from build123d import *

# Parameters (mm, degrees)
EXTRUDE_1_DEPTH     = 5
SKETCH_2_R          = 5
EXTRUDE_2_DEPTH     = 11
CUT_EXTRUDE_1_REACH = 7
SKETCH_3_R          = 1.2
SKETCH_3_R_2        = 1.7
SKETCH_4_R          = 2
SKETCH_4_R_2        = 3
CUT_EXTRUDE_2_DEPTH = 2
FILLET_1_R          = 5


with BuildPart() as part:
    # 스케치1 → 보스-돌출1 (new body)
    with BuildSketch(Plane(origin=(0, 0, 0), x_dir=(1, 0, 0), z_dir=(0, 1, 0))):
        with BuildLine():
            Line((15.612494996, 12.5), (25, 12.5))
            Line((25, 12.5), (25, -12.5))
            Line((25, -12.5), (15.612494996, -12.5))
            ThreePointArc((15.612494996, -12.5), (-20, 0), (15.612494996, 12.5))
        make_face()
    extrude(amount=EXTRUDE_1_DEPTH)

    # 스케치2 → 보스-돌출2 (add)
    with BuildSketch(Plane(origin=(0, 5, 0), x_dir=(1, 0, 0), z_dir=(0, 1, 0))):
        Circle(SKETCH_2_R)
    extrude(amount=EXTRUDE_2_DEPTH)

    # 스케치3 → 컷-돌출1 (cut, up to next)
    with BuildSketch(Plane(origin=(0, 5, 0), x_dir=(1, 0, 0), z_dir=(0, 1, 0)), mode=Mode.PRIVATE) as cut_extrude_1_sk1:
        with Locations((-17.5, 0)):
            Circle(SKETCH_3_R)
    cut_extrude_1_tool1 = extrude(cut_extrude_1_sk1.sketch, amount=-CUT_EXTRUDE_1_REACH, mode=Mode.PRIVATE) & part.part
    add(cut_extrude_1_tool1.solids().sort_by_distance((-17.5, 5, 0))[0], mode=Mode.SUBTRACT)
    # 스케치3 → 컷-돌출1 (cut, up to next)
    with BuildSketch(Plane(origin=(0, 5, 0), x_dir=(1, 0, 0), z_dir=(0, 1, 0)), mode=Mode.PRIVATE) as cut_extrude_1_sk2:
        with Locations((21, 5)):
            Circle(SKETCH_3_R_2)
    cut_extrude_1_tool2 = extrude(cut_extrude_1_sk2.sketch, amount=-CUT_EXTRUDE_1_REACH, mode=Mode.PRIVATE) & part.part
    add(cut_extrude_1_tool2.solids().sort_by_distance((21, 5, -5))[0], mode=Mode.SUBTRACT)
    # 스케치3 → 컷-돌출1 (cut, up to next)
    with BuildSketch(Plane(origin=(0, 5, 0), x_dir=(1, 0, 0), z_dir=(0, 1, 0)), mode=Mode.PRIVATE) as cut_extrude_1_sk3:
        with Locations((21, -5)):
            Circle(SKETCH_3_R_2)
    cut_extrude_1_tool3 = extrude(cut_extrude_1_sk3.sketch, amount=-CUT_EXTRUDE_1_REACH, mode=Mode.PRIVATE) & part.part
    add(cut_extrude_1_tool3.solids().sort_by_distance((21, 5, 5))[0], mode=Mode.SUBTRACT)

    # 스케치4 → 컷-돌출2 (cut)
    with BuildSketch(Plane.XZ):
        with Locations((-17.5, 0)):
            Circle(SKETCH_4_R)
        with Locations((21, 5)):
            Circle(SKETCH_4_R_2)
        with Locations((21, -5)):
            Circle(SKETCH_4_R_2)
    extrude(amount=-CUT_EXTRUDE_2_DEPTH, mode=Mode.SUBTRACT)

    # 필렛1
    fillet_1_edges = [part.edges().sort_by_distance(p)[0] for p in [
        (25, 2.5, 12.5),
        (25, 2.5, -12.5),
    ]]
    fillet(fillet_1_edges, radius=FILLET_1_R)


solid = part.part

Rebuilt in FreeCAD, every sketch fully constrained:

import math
import FreeCAD as App
import Part
import Sketcher

V = App.Vector
Q = App.Units.Quantity


def edges_at(feature, points):
    """Names of the edges that pass closest to the given points."""
    edges = feature.Shape.Edges
    near = lambda p: min(range(len(edges)), key=lambda i: edges[i].distToShape(Part.Vertex(*p))[0])
    return sorted({f"Edge{near(p) + 1}" for p in points})

doc = App.newDocument("Part")
body = doc.addObject("PartDesign::Body", "Body")

sketch1 = body.newObject("Sketcher::SketchObject", "Sketch")
sketch1.AttachmentSupport = (doc.getObject("XZ_Plane"), [""])
sketch1.MapMode = "FlatFace"
sketch1.addGeometry([
    Part.LineSegment(V(25, -12.5, 0), V(15.612495, -12.5, 0)),
    Part.ArcOfCircle(Part.Circle(V(0, 0, 0), V(0, 0, 1), 20), math.radians(38.682187), math.radians(321.317813)),
    Part.LineSegment(V(15.612495, 12.5, 0), V(25, 12.5, 0)),
    Part.LineSegment(V(25, 12.5, 0), V(25, -12.5, 0)),
], False)
sketch1.addConstraint([
    Sketcher.Constraint("Coincident", 0, 2, 1, 2),
    Sketcher.Constraint("Coincident", 1, 1, 2, 1),
    Sketcher.Constraint("Coincident", 2, 2, 3, 1),
    Sketcher.Constraint("Coincident", 3, 2, 0, 1),
    Sketcher.Constraint("Horizontal", 0),
    Sketcher.Constraint("Horizontal", 2),
    Sketcher.Constraint("Vertical", 3),
    Sketcher.Constraint("Coincident", 1, 3, -1, 1),
    Sketcher.Constraint("Vertical", 0, 2, 1, 1),
    Sketcher.Constraint("Radius", 1, Q("20 mm")),
    Sketcher.Constraint("DistanceY", 3, 2, 3, 1, Q("25 mm")),
    Sketcher.Constraint("DistanceX", -1, 1, 2, 2, Q("25 mm")),
])
pad1 = body.newObject("PartDesign::Pad", "Pad")
pad1.Profile = sketch1
pad1.Length = 5
pad1.Reversed = True

sketch2 = body.newObject("Sketcher::SketchObject", "Sketch001")
sketch2.AttachmentSupport = (doc.getObject("XZ_Plane"), [""])
sketch2.MapMode = "FlatFace"
sketch2.AttachmentOffset = App.Placement(V(0, 0, -5), App.Rotation())
sketch2.addGeometry(Part.Circle(V(0, 0, 0), V(0, 0, 1), 5), False)
sketch2.addConstraint([
    Sketcher.Constraint("Coincident", 0, 3, -1, 1),
    Sketcher.Constraint("Diameter", 0, Q("10 mm")),
])
pad2 = body.newObject("PartDesign::Pad", "Pad001")
pad2.Profile = sketch2
pad2.Length = 11
pad2.Reversed = True

sketch3 = body.newObject("Sketcher::SketchObject", "Sketch002")
sketch3.AttachmentSupport = (doc.getObject("XZ_Plane"), [""])
sketch3.MapMode = "FlatFace"
sketch3.AttachmentOffset = App.Placement(V(0, 0, -5), App.Rotation())
sketch3.addGeometry(Part.Circle(V(-17.5, 0, 0), V(0, 0, 1), 1.2), False)
sketch3.addConstraint([
    Sketcher.Constraint("PointOnObject", 0, 3, -1),
    Sketcher.Constraint("Diameter", 0, Q("2.4 mm")),
    Sketcher.Constraint("DistanceX", 0, 3, -1, 1, Q("17.5 mm")),
])
pocket1 = body.newObject("PartDesign::Pocket", "Pocket")
pocket1.Profile = sketch3
pocket1.Type = "UpToFirst"
pocket1.Reversed = True

sketch4 = body.newObject("Sketcher::SketchObject", "Sketch003")
sketch4.AttachmentSupport = (doc.getObject("XZ_Plane"), [""])
sketch4.MapMode = "FlatFace"
sketch4.AttachmentOffset = App.Placement(V(0, 0, -5), App.Rotation())
sketch4.addGeometry(Part.Circle(V(21, -5, 0), V(0, 0, 1), 1.7), False)
sketch4.addConstraint([
    Sketcher.Constraint("Diameter", 0, Q("3.4 mm")),
    Sketcher.Constraint("DistanceX", -1, 1, 0, 3, Q("21 mm")),
    Sketcher.Constraint("DistanceY", 0, 3, -1, 1, Q("5 mm")),
])
pocket2 = body.newObject("PartDesign::Pocket", "Pocket001")
pocket2.Profile = sketch4
pocket2.Type = "UpToFirst"
pocket2.Reversed = True

sketch5 = body.newObject("Sketcher::SketchObject", "Sketch004")
sketch5.AttachmentSupport = (doc.getObject("XZ_Plane"), [""])
sketch5.MapMode = "FlatFace"
sketch5.AttachmentOffset = App.Placement(V(0, 0, -5), App.Rotation())
sketch5.addGeometry(Part.Circle(V(21, 5, 0), V(0, 0, 1), 1.7), False)
sketch5.addConstraint([
    Sketcher.Constraint("Diameter", 0, Q("3.4 mm")),
    Sketcher.Constraint("DistanceX", -1, 1, 0, 3, Q("21 mm")),
    Sketcher.Constraint("DistanceY", -1, 1, 0, 3, Q("5 mm")),
])
pocket3 = body.newObject("PartDesign::Pocket", "Pocket002")
pocket3.Profile = sketch5
pocket3.Type = "UpToFirst"
pocket3.Reversed = True

sketch6 = body.newObject("Sketcher::SketchObject", "Sketch005")
sketch6.AttachmentSupport = (doc.getObject("XZ_Plane"), [""])
sketch6.MapMode = "FlatFace"
sketch6.addGeometry([
    Part.Circle(V(-17.5, 0, 0), V(0, 0, 1), 2),
    Part.Circle(V(21, 5, 0), V(0, 0, 1), 3),
    Part.Circle(V(21, -5, 0), V(0, 0, 1), 3),
], False)
sketch6.addConstraint([
    Sketcher.Constraint("Equal", 1, 2),
    Sketcher.Constraint("Symmetric", 1, 3, 2, 3, -1),
    Sketcher.Constraint("PointOnObject", 0, 3, -1),
    Sketcher.Constraint("Diameter", 0, Q("4 mm")),
    Sketcher.Constraint("Diameter", 1, Q("6 mm")),
    Sketcher.Constraint("DistanceX", -1, 1, 1, 3, Q("21 mm")),
    Sketcher.Constraint("DistanceY", -1, 1, 1, 3, Q("5 mm")),
    Sketcher.Constraint("DistanceX", 0, 3, -1, 1, Q("17.5 mm")),
])
pocket4 = body.newObject("PartDesign::Pocket", "Pocket003")
pocket4.Profile = sketch6
pocket4.Length = 2
doc.recompute()

fillet = body.newObject("PartDesign::Fillet", "Fillet")
fillet.Base = (pocket4, edges_at(pocket4, [(25, 2.5, 12.5), (25, 2.5, -12.5)]))
fillet.Radius = 5

doc.recompute()
